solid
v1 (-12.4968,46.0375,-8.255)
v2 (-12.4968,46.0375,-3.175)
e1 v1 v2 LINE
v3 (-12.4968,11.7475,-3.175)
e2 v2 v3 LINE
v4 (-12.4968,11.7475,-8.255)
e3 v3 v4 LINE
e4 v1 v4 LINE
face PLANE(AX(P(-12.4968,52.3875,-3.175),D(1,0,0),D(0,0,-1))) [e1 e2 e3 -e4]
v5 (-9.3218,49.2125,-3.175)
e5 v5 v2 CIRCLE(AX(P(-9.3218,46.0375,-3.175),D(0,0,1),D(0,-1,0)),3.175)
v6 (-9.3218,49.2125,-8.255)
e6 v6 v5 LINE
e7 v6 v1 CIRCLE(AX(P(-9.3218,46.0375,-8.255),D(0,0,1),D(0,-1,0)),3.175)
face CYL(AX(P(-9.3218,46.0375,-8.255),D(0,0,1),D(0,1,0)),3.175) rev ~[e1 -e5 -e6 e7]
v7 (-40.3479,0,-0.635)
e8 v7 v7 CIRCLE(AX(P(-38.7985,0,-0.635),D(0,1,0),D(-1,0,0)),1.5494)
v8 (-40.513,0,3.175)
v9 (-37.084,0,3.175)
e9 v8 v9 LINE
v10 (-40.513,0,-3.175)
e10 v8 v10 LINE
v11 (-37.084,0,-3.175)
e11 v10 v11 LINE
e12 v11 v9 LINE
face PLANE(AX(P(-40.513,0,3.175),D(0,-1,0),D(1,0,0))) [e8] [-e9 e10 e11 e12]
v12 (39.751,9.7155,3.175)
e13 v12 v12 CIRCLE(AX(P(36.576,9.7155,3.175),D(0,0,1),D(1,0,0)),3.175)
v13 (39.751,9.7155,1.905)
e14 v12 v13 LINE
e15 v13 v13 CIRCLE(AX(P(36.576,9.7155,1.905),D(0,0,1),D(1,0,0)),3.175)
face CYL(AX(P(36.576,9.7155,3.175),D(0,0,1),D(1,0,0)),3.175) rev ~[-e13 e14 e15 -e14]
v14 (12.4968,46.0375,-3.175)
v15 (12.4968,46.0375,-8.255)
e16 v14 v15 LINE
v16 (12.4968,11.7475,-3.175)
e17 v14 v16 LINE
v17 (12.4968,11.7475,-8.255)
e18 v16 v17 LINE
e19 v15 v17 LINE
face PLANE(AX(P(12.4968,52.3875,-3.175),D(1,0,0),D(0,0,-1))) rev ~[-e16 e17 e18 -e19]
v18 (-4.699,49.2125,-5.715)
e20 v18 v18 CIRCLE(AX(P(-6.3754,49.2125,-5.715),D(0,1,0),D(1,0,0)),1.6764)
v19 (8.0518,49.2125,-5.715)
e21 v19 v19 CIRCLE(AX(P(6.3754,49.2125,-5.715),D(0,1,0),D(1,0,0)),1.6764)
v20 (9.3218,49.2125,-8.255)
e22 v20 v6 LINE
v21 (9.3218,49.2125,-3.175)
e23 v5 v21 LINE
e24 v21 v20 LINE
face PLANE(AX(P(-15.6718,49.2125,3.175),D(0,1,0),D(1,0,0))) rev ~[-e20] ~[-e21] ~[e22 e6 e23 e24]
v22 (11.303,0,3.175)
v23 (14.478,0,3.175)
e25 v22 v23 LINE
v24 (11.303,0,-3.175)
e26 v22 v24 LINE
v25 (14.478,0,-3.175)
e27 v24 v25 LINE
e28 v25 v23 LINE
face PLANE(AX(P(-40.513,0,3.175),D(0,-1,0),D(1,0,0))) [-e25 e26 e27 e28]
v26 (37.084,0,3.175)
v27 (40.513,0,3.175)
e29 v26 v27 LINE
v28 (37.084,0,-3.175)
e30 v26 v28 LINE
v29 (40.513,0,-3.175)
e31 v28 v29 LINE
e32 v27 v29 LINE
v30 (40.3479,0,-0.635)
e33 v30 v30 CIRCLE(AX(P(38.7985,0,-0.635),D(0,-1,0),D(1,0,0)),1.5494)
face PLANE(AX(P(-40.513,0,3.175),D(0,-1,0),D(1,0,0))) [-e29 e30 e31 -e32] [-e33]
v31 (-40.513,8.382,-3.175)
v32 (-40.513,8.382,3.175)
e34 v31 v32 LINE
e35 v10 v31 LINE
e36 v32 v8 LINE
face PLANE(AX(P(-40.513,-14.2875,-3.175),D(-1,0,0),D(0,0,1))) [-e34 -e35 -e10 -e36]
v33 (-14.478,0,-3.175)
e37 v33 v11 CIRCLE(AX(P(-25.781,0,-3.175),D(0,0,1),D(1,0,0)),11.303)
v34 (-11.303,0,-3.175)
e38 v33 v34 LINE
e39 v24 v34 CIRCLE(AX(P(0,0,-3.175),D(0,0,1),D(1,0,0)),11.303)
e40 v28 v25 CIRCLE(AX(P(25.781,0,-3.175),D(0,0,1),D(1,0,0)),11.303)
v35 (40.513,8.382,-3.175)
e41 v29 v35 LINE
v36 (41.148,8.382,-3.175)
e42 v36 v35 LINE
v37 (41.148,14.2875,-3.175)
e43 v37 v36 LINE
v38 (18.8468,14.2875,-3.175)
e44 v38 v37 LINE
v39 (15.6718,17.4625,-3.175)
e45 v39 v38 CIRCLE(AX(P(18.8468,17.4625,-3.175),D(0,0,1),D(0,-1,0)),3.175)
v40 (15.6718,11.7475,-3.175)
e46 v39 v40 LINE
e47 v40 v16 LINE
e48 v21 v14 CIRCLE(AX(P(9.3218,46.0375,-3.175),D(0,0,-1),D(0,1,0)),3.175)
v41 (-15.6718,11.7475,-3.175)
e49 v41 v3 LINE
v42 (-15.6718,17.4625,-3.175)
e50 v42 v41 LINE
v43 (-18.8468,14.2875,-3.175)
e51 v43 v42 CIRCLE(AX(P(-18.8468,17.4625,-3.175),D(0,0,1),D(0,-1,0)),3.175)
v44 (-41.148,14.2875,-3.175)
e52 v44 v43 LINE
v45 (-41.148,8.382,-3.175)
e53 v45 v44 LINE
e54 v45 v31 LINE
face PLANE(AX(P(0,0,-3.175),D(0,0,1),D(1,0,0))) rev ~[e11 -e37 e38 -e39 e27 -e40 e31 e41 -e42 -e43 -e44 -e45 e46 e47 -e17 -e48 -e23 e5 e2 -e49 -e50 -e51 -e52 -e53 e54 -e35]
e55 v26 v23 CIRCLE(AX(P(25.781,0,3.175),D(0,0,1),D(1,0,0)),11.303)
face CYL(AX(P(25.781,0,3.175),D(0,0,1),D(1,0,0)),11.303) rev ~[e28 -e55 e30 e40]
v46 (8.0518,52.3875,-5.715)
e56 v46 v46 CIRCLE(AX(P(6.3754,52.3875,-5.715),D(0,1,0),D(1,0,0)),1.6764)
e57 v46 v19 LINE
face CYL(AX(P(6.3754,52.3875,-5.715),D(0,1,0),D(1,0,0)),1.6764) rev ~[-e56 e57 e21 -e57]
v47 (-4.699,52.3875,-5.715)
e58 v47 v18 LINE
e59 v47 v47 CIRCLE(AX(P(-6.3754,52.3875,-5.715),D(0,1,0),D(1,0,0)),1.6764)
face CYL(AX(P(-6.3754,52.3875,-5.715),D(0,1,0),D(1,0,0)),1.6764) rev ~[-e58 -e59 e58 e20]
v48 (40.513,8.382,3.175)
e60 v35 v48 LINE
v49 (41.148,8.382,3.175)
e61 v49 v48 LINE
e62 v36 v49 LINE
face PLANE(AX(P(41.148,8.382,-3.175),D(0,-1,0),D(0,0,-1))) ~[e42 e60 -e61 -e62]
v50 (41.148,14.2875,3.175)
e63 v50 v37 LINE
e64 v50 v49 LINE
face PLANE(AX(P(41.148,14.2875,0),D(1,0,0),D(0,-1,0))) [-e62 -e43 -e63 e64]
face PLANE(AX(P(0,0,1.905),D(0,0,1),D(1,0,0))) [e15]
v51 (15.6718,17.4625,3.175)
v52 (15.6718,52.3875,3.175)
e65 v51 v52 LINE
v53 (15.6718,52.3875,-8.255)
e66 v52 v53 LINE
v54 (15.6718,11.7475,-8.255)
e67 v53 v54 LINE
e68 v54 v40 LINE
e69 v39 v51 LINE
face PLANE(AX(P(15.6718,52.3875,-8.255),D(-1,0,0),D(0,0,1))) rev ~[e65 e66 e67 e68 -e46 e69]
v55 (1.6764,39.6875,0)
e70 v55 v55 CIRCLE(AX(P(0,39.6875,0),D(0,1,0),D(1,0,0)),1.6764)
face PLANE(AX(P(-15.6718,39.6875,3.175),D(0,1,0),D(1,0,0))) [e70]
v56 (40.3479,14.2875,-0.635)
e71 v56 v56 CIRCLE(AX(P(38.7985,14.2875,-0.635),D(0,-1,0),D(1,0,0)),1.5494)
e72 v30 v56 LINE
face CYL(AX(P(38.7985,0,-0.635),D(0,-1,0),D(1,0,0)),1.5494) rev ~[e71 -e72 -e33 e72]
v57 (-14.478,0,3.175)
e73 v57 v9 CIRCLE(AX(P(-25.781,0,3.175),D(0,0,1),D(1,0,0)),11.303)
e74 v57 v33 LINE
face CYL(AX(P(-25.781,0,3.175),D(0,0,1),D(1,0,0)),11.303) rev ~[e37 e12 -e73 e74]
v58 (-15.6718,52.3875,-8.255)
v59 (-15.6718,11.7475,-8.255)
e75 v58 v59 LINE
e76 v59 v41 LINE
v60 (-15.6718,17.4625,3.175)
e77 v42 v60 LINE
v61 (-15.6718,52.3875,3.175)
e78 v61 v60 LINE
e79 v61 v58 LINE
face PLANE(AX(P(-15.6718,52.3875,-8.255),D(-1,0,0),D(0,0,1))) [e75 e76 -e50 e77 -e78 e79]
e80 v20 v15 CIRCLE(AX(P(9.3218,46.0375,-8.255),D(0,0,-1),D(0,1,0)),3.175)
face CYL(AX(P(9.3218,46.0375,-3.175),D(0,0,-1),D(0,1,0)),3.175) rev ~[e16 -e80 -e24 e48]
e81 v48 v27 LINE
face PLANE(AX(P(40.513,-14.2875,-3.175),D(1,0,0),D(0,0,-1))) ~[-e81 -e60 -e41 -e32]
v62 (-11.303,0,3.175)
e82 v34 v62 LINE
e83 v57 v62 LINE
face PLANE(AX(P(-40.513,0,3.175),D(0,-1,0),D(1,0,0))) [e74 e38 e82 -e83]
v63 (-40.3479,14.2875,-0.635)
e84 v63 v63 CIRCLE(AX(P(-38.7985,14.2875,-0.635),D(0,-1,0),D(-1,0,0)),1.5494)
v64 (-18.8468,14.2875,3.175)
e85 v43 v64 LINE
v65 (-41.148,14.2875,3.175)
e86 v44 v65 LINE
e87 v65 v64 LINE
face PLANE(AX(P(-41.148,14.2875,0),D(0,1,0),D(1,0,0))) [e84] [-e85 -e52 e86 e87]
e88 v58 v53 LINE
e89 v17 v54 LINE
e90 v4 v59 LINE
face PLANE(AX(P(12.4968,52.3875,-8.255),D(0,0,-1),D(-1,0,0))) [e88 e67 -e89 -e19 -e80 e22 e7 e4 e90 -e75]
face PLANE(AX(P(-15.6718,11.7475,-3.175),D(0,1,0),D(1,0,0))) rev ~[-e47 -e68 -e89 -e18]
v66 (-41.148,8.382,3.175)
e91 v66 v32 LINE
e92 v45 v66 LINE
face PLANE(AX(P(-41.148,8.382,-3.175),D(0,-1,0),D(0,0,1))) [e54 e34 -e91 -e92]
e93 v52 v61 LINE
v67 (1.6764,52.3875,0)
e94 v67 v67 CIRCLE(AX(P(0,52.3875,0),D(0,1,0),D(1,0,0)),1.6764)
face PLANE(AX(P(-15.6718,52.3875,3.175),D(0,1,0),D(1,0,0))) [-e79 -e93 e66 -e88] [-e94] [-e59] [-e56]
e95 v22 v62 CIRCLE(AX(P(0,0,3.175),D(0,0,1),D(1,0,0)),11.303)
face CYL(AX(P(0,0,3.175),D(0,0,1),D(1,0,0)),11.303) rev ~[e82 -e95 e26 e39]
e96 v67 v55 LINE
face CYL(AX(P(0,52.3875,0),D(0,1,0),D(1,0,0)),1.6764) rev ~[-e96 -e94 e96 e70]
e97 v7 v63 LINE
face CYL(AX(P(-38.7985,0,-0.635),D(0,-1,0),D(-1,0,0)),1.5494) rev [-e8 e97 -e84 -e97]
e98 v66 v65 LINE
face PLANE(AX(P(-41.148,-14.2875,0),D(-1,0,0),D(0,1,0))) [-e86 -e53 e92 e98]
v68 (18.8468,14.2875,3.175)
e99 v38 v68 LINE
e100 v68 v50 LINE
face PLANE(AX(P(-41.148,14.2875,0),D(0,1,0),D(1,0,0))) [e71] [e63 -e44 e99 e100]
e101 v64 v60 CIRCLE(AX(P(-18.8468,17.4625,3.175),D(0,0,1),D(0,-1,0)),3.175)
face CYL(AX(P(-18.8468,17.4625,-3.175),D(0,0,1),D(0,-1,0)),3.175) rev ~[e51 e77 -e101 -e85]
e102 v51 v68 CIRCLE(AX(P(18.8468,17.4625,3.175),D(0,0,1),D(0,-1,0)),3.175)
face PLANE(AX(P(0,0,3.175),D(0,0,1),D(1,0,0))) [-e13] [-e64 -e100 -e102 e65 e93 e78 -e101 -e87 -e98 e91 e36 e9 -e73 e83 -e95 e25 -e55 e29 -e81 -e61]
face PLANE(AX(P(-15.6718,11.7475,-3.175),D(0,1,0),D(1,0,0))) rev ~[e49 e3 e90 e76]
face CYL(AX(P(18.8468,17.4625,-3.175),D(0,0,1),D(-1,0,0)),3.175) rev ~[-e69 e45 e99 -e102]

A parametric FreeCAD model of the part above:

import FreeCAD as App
import Part
import Sketcher
from FreeCAD import Vector
Q = App.Units.Quantity


def edges_at(feature, points):
    """Names of the edges that pass closest to the given points."""
    edges = feature.Shape.Edges
    near = lambda p: min(range(len(edges)), key=lambda i: edges[i].distToShape(Part.Vertex(*p))[0])
    return sorted({f"Edge{near(p) + 1}" for p in points})

doc = App.newDocument("Part")
body = doc.addObject("PartDesign::Body", "Body")

sketch1 = body.newObject("Sketcher::SketchObject", "Sketch")
sketch1.AttachmentSupport = (doc.getObject("XY_Plane"), [""])
sketch1.MapMode = "FlatFace"
sketch1.addGeometry([
    Part.LineSegment(Vector(41, 14, 0), Vector(-41, 14, 0)),
    Part.LineSegment(Vector(-41, 14, 0), Vector(-41, -14, 0)),
    Part.LineSegment(Vector(-41, -14, 0), Vector(41, -14, 0)),
    Part.LineSegment(Vector(41, -14, 0), Vector(41, 14, 0)),
], False)
sketch1.addConstraint([
    Sketcher.Constraint("Coincident", 0, 2, 1, 1),
    Sketcher.Constraint("Coincident", 1, 2, 2, 1),
    Sketcher.Constraint("Coincident", 2, 2, 3, 1),
    Sketcher.Constraint("Coincident", 3, 2, 0, 1),
    Sketcher.Constraint("Horizontal", 0),
    Sketcher.Constraint("Vertical", 1),
    Sketcher.Constraint("Horizontal", 2),
    Sketcher.Constraint("Vertical", 3),
    Sketcher.Constraint("Symmetric", 0, 2, 2, 2, -1, 1),
    Sketcher.Constraint("DistanceX", 0, 2, 0, 1, Q("3.24 in")),
    Sketcher.Constraint("DistanceY", 1, 2, 1, 1, Q("1.125 in")),
])
pad1 = body.newObject("PartDesign::Pad", "Pad")
pad1.Profile = sketch1
pad1.Length = Q("0.25 in")
pad1.Midplane = True

sketch2 = body.newObject("Sketcher::SketchObject", "Sketch001")
sketch2.AttachmentSupport = (doc.getObject("YZ_Plane"), [""])
sketch2.MapMode = "FlatFace"
sketch2.AttachmentOffset = App.Placement(Vector(0, 0, -1.62 * 25.4), App.Rotation())
sketch2.addGeometry([
    Part.LineSegment(Vector(8, -3, 0), Vector(-8, -3, 0)),
    Part.LineSegment(Vector(-8, -3, 0), Vector(-8, 3, 0)),
    Part.LineSegment(Vector(-8, 3, 0), Vector(8, 3, 0)),
    Part.LineSegment(Vector(8, 3, 0), Vector(8, -3, 0)),
], False)
sketch2.addConstraint([
    Sketcher.Constraint("Coincident", 0, 2, 1, 1),
    Sketcher.Constraint("Coincident", 1, 2, 2, 1),
    Sketcher.Constraint("Coincident", 2, 2, 3, 1),
    Sketcher.Constraint("Coincident", 3, 2, 0, 1),
    Sketcher.Constraint("Horizontal", 0),
    Sketcher.Constraint("Vertical", 1),
    Sketcher.Constraint("Horizontal", 2),
    Sketcher.Constraint("Vertical", 3),
    Sketcher.Constraint("Symmetric", 0, 2, 2, 2, -1, 1),
    Sketcher.Constraint("DistanceX", 0, 2, 0, 1, Q("0.66 in")),
    Sketcher.Constraint("DistanceY", 1, 1, 1, 2, Q("0.25 in")),
])
pocket1 = body.newObject("PartDesign::Pocket", "Pocket")
pocket1.Profile = sketch2
pocket1.Length = Q("0.025 in")
pocket1.Reversed = True
doc.recompute()

mirrored = body.newObject("PartDesign::Mirrored", "Mirrored")
mirrored.Originals = [pocket1]
mirrored.MirrorPlane = (doc.getObject("YZ_Plane"), [""])
body.Tip = mirrored

sketch3 = body.newObject("Sketcher::SketchObject", "Sketch002")
sketch3.AttachmentSupport = (doc.getObject("XY_Plane"), [""])
sketch3.MapMode = "FlatFace"
sketch3.AttachmentOffset = App.Placement(Vector(0, 0, 0.125 * 25.4), App.Rotation())
sketch3.addGeometry([
    Part.Circle(Vector(36.6, 9.7, 0), Vector(0, 0, 1), 3.2),
    Part.Circle(Vector(-36.6, -9.7, 0), Vector(0, 0, 1), 3.2),
], False)
sketch3.addConstraint([
    Sketcher.Constraint("Equal", 0, 1),
    Sketcher.Constraint("Symmetric", 0, 3, 1, 3, -1, 1),
    Sketcher.Constraint("Diameter", 0, Q("0.25 in")),
    Sketcher.Constraint("DistanceX", -1, 1, 0, 3, Q("1.44 in")),
    Sketcher.Constraint("DistanceY", 1, 3, 0, 3, Q("0.765 in")),
])
pocket2 = body.newObject("PartDesign::Pocket", "Pocket001")
pocket2.Profile = sketch3
pocket2.Length = Q("0.05 in")

sketch4 = body.newObject("Sketcher::SketchObject", "Sketch003")
sketch4.AttachmentSupport = (doc.getObject("XY_Plane"), [""])
sketch4.MapMode = "FlatFace"
sketch4.AttachmentOffset = App.Placement(Vector(0, 0, -0.125 * 25.4), App.Rotation())
sketch4.addGeometry([
    Part.LineSegment(Vector(16, 52, 0), Vector(16, 14, 0)),
    Part.LineSegment(Vector(16, 14, 0), Vector(-16, 14, 0)),
    Part.LineSegment(Vector(-16, 14, 0), Vector(-16, 52, 0)),
    Part.LineSegment(Vector(-16, 52, 0), Vector(16, 52, 0)),
], False)
sketch4.addConstraint([
    Sketcher.Constraint("Coincident", 0, 2, 1, 1),
    Sketcher.Constraint("Coincident", 1, 2, 2, 1),
    Sketcher.Constraint("Coincident", 2, 2, 3, 1),
    Sketcher.Constraint("Coincident", 3, 2, 0, 1),
    Sketcher.Constraint("Vertical", 0),
    Sketcher.Constraint("Horizontal", 1),
    Sketcher.Constraint("Vertical", 2),
    Sketcher.Constraint("Horizontal", 3),
    Sketcher.Constraint("DistanceY", 0, 2, 0, 1, Q("1.5 in")),
    Sketcher.Constraint("DistanceX", 1, 2, 1, 1, Q("1.234 in")),
    Sketcher.Constraint("DistanceX", -1, 1, 0, 2, Q("0.617 in")),
    Sketcher.Constraint("DistanceY", -1, 1, 0, 2, Q("0.5625 in")),
])
pad2 = body.newObject("PartDesign::Pad", "Pad001")
pad2.Profile = sketch4
pad2.Length = Q("0.25 in")

sketch5 = body.newObject("Sketcher::SketchObject", "Sketch004")
sketch5.AttachmentSupport = (doc.getObject("XY_Plane"), [""])
sketch5.MapMode = "FlatFace"
sketch5.AttachmentOffset = App.Placement(Vector(0, 0, 0.125 * 25.4), App.Rotation())
sketch5.addGeometry([
    Part.Circle(Vector(-26, 0, 0), Vector(0, 0, 1), 11),
    Part.Circle(Vector(0, 0, 0), Vector(0, 0, 1), 11),
    Part.Circle(Vector(26, 0, 0), Vector(0, 0, 1), 11),
], False)
sketch5.addConstraint([
    Sketcher.Constraint("Coincident", 1, 3, -1, 1),
    Sketcher.Constraint("Equal", 0, 1),
    Sketcher.Constraint("Equal", 1, 2),
    Sketcher.Constraint("Symmetric", 0, 3, 2, 3, -1, 1),
    Sketcher.Constraint("PointOnObject", 0, 3, -1),
    Sketcher.Constraint("Diameter", 0, Q("0.89 in")),
    Sketcher.Constraint("DistanceX", 0, 3, -1, 1, Q("1.015 in")),
])
pocket3 = body.newObject("PartDesign::Pocket", "Pocket002")
pocket3.Profile = sketch5
pocket3.Length = Q("1 in")

sketch6 = body.newObject("Sketcher::SketchObject", "Sketch005")
sketch6.AttachmentSupport = (doc.getObject("XY_Plane"), [""])
sketch6.MapMode = "FlatFace"
sketch6.AttachmentOffset = App.Placement(Vector(0, 0, 0.125 * 25.4), App.Rotation())
sketch6.addGeometry([
    Part.LineSegment(Vector(-40.5, -8.4, 0), Vector(-41.1, -8.4, 0)),
    Part.LineSegment(Vector(-41.1, -8.4, 0), Vector(-41.1, -14.3, 0)),
    Part.LineSegment(Vector(-41.1, -14.3, 0), Vector(41.1, -14.3, 0)),
    Part.LineSegment(Vector(41.1, -14.3, 0), Vector(41.1, -8.4, 0)),
    Part.LineSegment(Vector(41.1, -8.4, 0), Vector(40.5, -8.4, 0)),
    Part.LineSegment(Vector(40.5, -8.4, 0), Vector(40.5, 0, 0)),
    Part.LineSegment(Vector(40.5, 0, 0), Vector(-40.5, 0, 0)),
    Part.LineSegment(Vector(-40.5, 0, 0), Vector(-40.5, -8.4, 0)),
], False)
sketch6.addConstraint([
    Sketcher.Constraint("Coincident", 0, 2, 1, 1),
    Sketcher.Constraint("Coincident", 1, 2, 2, 1),
    Sketcher.Constraint("Coincident", 2, 2, 3, 1),
    Sketcher.Constraint("Coincident", 3, 2, 4, 1),
    Sketcher.Constraint("Coincident", 4, 2, 5, 1),
    Sketcher.Constraint("Coincident", 5, 2, 6, 1),
    Sketcher.Constraint("Coincident", 6, 2, 7, 1),
    Sketcher.Constraint("Coincident", 7, 2, 0, 1),
    Sketcher.Constraint("Horizontal", 0),
    Sketcher.Constraint("Vertical", 1),
    Sketcher.Constraint("Horizontal", 2),
    Sketcher.Constraint("Vertical", 3),
    Sketcher.Constraint("Horizontal", 4),
    Sketcher.Constraint("Vertical", 5),
    Sketcher.Constraint("Horizontal", 6),
    Sketcher.Constraint("Vertical", 7),
    Sketcher.Constraint("Symmetric", 5, 2, 6, 2, -1, 1),
    Sketcher.Constraint("Symmetric", 0, 2, 3, 2, -2),
    Sketcher.Constraint("DistanceX", 2, 1, 2, 2, Q("3.24 in")),
    Sketcher.Constraint("DistanceX", 6, 2, 6, 1, Q("3.19 in")),
    Sketcher.Constraint("DistanceY", 5, 1, 5, 2, Q("0.33 in")),
    Sketcher.Constraint("DistanceY", 1, 2, 1, 1, Q("0.2325 in")),
])
pocket4 = body.newObject("PartDesign::Pocket", "Pocket003")
pocket4.Profile = sketch6
pocket4.Type = "ThroughAll"

sketch7 = body.newObject("Sketcher::SketchObject", "Sketch006")
sketch7.AttachmentSupport = (doc.getObject("XZ_Plane"), [""])
sketch7.MapMode = "FlatFace"
sketch7.addGeometry(Part.Circle(Vector(38.8, -0.6, 0), Vector(0, 0, 1), 1.5), False)
sketch7.addConstraint([
    Sketcher.Constraint("Diameter", 0, Q("0.122 in")),
    Sketcher.Constraint("DistanceY", 0, 3, -1, 1, Q("0.025 in")),
    Sketcher.Constraint("DistanceX", -1, 1, 0, 3, Q("1.5275 in")),
])
pocket5 = body.newObject("PartDesign::Pocket", "Pocket004")
pocket5.Profile = sketch7
pocket5.Type = "ThroughAll"
doc.recompute()

mirrored2 = body.newObject("PartDesign::Mirrored", "Mirrored001")
mirrored2.Originals = [pocket5]
mirrored2.MirrorPlane = (doc.getObject("YZ_Plane"), [""])
body.Tip = mirrored2
doc.recompute()

fillet = body.newObject("PartDesign::Fillet", "Fillet")
fillet.Base = (mirrored2, edges_at(mirrored2, [(15.672, 14.287, 0), (-15.672, 14.287, 0)]))
fillet.Radius = Q("0.125 in")

sketch8 = body.newObject("Sketcher::SketchObject", "Sketch007")
sketch8.AttachmentSupport = (doc.getObject("XZ_Plane"), [""])
sketch8.MapMode = "FlatFace"
sketch8.AttachmentOffset = App.Placement(Vector(0, 0, -2.0625 * 25.4), App.Rotation())
sketch8.addGeometry([
    Part.LineSegment(Vector(-15.7, -8.3, 0), Vector(-15.7, -3.2, 0)),
    Part.LineSegment(Vector(-15.7, -3.2, 0), Vector(-12.5, -3.2, 0)),
    Part.LineSegment(Vector(-12.5, -3.2, 0), Vector(-12.5, -8.3, 0)),
    Part.LineSegment(Vector(-12.5, -8.3, 0), Vector(-15.7, -8.3, 0)),
    Part.LineSegment(Vector(12.5, -3.2, 0), Vector(15.7, -3.2, 0)),
    Part.LineSegment(Vector(15.7, -3.2, 0), Vector(15.7, -8.3, 0)),
    Part.LineSegment(Vector(15.7, -8.3, 0), Vector(12.5, -8.3, 0)),
    Part.LineSegment(Vector(12.5, -8.3, 0), Vector(12.5, -3.2, 0)),
], False)
sketch8.addConstraint([
    Sketcher.Constraint("Coincident", 0, 2, 1, 1),
    Sketcher.Constraint("Coincident", 1, 2, 2, 1),
    Sketcher.Constraint("Coincident", 2, 2, 3, 1),
    Sketcher.Constraint("Coincident", 3, 2, 0, 1),
    Sketcher.Constraint("Coincident", 4, 2, 5, 1),
    Sketcher.Constraint("Coincident", 5, 2, 6, 1),
    Sketcher.Constraint("Coincident", 6, 2, 7, 1),
    Sketcher.Constraint("Coincident", 7, 2, 4, 1),
    Sketcher.Constraint("Vertical", 0),
    Sketcher.Constraint("Horizontal", 1),
    Sketcher.Constraint("Vertical", 2),
    Sketcher.Constraint("Horizontal", 3),
    Sketcher.Constraint("Horizontal", 4),
    Sketcher.Constraint("Vertical", 5),
    Sketcher.Constraint("Horizontal", 6),
    Sketcher.Constraint("Vertical", 7),
    Sketcher.Constraint("Symmetric", 0, 2, 4, 2, -2),
    Sketcher.Constraint("Symmetric", 2, 2, 6, 2, -2),
    Sketcher.Constraint("DistanceY", 0, 1, 0, 2, Q("0.2 in")),
    Sketcher.Constraint("DistanceX", 1, 1, 1, 2, Q("0.125 in")),
    Sketcher.Constraint("DistanceY", 0, 2, -1, 1, Q("0.125 in")),
    Sketcher.Constraint("DistanceX", 0, 2, 4, 2, Q("1.234 in")),
])
pad3 = body.newObject("PartDesign::Pad", "Pad002")
pad3.Profile = sketch8
pad3.Length = Q("1.6 in")

sketch9 = body.newObject("Sketcher::SketchObject", "Sketch008")
sketch9.AttachmentSupport = (doc.getObject("XZ_Plane"), [""])
sketch9.MapMode = "FlatFace"
sketch9.AttachmentOffset = App.Placement(Vector(0, 0, -2.0625 * 25.4), App.Rotation())
sketch9.addGeometry([
    Part.LineSegment(Vector(-12, -3, 0), Vector(12, -3, 0)),
    Part.LineSegment(Vector(12, -3, 0), Vector(12, -8, 0)),
    Part.LineSegment(Vector(12, -8, 0), Vector(-12, -8, 0)),
    Part.LineSegment(Vector(-12, -8, 0), Vector(-12, -3, 0)),
], False)
sketch9.addConstraint([
    Sketcher.Constraint("Coincident", 0, 2, 1, 1),
    Sketcher.Constraint("Coincident", 1, 2, 2, 1),
    Sketcher.Constraint("Coincident", 2, 2, 3, 1),
    Sketcher.Constraint("Coincident", 3, 2, 0, 1),
    Sketcher.Constraint("Horizontal", 0),
    Sketcher.Constraint("Vertical", 1),
    Sketcher.Constraint("Horizontal", 2),
    Sketcher.Constraint("Vertical", 3),
    Sketcher.Constraint("DistanceY", 1, 2, 1, 1, Q("0.2 in")),
    Sketcher.Constraint("DistanceX", 0, 1, 0, 2, Q("0.984 in")),
    Sketcher.Constraint("DistanceX", -1, 1, 0, 2, Q("0.492 in")),
    Sketcher.Constraint("DistanceY", 0, 2, -1, 1, Q("0.125 in")),
])
pad4 = body.newObject("PartDesign::Pad", "Pad003")
pad4.Profile = sketch9
pad4.Length = Q("0.125 in")
doc.recompute()

fillet2 = body.newObject("PartDesign::Fillet", "Fillet001")
fillet2.Base = (pad4, edges_at(pad4, [(-12.497, 49.212, -5.715), (12.497, 49.212, -5.715)]))
fillet2.Radius = Q("0.125 in")

sketch10 = body.newObject("Sketcher::SketchObject", "Sketch009")
sketch10.AttachmentSupport = (doc.getObject("XZ_Plane"), [""])
sketch10.MapMode = "FlatFace"
sketch10.AttachmentOffset = App.Placement(Vector(0, 0, -2.0625 * 25.4), App.Rotation())
sketch10.addGeometry([
    Part.Circle(Vector(-6.4, -5.7, 0), Vector(0, 0, 1), 1.7),
    Part.Circle(Vector(6.4, -5.7, 0), Vector(0, 0, 1), 1.7),
], False)
sketch10.addConstraint([
    Sketcher.Constraint("Equal", 0, 1),
    Sketcher.Constraint("Symmetric", 0, 3, 1, 3, -2),
    Sketcher.Constraint("Diameter", 0, Q("0.132 in")),
    Sketcher.Constraint("DistanceX", 0, 3, -1, 1, Q("0.251 in")),
    Sketcher.Constraint("DistanceY", 0, 3, -1, 1, Q("0.225 in")),
])
pocket6 = body.newObject("PartDesign::Pocket", "Pocket005")
pocket6.Profile = sketch10
pocket6.Type = "ThroughAll"
pocket6.Reversed = True

sketch11 = body.newObject("Sketcher::SketchObject", "Sketch010")
sketch11.AttachmentSupport = (doc.getObject("XZ_Plane"), [""])
sketch11.MapMode = "FlatFace"
sketch11.AttachmentOffset = App.Placement(Vector(0, 0, -2.0625 * 25.4), App.Rotation())
sketch11.addGeometry(Part.Circle(Vector(0, 0, 0), Vector(0, 0, 1), 1.7), False)
sketch11.addConstraint([
    Sketcher.Constraint("Coincident", 0, 3, -1, 1),
    Sketcher.Constraint("Diameter", 0, Q("0.132 in")),
])
pocket7 = body.newObject("PartDesign::Pocket", "Pocket006")
pocket7.Profile = sketch11
pocket7.Length = Q("0.5 in")
pocket7.Reversed = True

doc.recompute()
